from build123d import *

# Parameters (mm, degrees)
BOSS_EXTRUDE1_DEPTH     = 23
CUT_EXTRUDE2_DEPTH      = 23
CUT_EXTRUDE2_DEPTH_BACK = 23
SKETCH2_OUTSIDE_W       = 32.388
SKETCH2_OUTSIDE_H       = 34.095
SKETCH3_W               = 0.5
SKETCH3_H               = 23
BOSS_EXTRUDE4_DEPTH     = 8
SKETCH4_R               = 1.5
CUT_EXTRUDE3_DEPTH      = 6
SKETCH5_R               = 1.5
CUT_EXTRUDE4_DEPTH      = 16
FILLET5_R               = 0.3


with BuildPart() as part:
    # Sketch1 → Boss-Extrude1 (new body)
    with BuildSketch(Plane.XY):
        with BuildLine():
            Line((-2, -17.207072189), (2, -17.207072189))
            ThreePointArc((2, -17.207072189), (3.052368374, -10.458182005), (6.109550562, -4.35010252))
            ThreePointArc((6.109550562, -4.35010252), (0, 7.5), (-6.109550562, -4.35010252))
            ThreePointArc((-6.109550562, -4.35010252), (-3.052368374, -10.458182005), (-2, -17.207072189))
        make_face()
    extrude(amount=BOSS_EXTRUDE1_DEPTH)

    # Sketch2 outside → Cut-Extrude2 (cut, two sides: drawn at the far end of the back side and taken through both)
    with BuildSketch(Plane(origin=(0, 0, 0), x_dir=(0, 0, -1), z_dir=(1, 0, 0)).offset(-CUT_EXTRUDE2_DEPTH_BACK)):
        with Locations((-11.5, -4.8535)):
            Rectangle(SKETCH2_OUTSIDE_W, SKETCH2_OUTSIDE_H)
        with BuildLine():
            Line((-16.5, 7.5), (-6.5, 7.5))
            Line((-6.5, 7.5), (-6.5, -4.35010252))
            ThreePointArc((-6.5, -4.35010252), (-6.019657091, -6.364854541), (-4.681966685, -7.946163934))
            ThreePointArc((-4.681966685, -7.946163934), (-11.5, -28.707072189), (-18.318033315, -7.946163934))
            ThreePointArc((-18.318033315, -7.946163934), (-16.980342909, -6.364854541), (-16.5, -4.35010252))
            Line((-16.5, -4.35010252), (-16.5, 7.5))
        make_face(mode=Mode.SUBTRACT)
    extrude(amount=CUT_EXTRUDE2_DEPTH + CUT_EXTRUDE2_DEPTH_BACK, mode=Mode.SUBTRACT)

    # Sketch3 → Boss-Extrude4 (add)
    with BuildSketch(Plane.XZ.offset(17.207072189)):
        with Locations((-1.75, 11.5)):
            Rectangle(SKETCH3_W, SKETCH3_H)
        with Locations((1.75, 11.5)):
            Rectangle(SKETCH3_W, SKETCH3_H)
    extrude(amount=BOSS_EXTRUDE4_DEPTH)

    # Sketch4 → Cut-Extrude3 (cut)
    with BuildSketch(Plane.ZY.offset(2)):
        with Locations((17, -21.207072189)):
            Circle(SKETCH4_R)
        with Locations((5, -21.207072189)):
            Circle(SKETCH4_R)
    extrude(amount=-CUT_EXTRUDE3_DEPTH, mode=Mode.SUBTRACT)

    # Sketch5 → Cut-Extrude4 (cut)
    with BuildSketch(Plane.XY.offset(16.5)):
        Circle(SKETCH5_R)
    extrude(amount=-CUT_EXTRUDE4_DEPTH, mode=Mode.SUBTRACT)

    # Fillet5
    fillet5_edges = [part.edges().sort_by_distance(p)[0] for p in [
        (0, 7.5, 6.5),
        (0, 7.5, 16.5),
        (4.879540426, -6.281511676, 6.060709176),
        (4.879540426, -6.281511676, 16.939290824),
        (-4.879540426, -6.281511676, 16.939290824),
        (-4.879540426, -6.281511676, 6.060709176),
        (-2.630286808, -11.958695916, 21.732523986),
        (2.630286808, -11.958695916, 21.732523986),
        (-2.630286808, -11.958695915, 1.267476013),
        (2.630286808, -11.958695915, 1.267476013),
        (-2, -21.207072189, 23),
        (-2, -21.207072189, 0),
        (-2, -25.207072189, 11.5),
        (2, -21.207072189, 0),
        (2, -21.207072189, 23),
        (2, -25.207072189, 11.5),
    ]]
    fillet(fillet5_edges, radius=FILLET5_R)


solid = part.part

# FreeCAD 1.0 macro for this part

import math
import FreeCAD as App
import Part
import Sketcher
from FreeCAD import Vector


def edges_at(feature, points):
    """Names of the edges that pass closest to the given points."""
    edges = feature.Shape.Edges
    near = lambda p: min(range(len(edges)), key=lambda i: edges[i].distToShape(Part.Vertex(*p))[0])
    return sorted({f"Edge{near(p) + 1}" for p in points})


def add_polygon(sketch, points):
    """Adds a closed chain of lines whose ends are joined by coincident constraints."""
    first, n = sketch.GeometryCount, len(points)
    for a, b in zip(points, points[1:] + points[:1]):
        sketch.addGeometry(Part.LineSegment(App.Vector(*a, 0), App.Vector(*b, 0)), False)
    for i in range(n):
        sketch.addConstraint(Sketcher.Constraint("Coincident", first + i, 2, first + (i + 1) % n, 1))

doc = App.newDocument("Part")
body = doc.addObject("PartDesign::Body", "Body")

# Sketch on XY plane
sketch1 = body.newObject("Sketcher::SketchObject", "Sketch")
sketch1.AttachmentSupport = (doc.getObject("XY_Plane"), [""])
sketch1.MapMode = "FlatFace"
sketch1.addGeometry([
    Part.LineSegment(Vector(-2, -17.2, 0), Vector(2, -17.2, 0)),
    Part.ArcOfCircle(Part.Circle(Vector(24.2, -17.2, 0), Vector(0, 0, 1), 22.2), math.radians(145), math.radians(180)),
    Part.ArcOfCircle(Part.Circle(Vector(0, 0, 0), Vector(0, 0, 1), 7.5), math.radians(-35), math.radians(215)),
    Part.ArcOfCircle(Part.Circle(Vector(-24.2, -17.2, 0), Vector(0, 0, 1), 22.2), math.radians(0), math.radians(35)),
], False)
sketch1.addConstraint([
    Sketcher.Constraint("Coincident", 0, 2, 1, 2),
    Sketcher.Constraint("Tangent", 1, 1, 2, 1),
    Sketcher.Constraint("Tangent", 2, 2, 3, 2),
    Sketcher.Constraint("Coincident", 3, 1, 0, 1),
    Sketcher.Constraint("Horizontal", 0),
    Sketcher.Constraint("Coincident", 2, 3, -1, 1),
    Sketcher.Constraint("Equal", 1, 3),
    Sketcher.Constraint("Horizontal", 1, 3, 3, 3),
    Sketcher.Constraint("Horizontal", 3, 3, 0, 2),
    Sketcher.Constraint("Radius", 2, 7.5),
    Sketcher.Constraint("DistanceX", 0, 1, 0, 2, 4.0),
    Sketcher.Constraint("Radius", 1, 22.166667),
])
pad1 = body.newObject("PartDesign::Pad", "Pad")
pad1.Profile = sketch1
pad1.Length = 23

# Sketch on YZ plane
sketch2 = body.newObject("Sketcher::SketchObject", "Sketch001")
sketch2.AttachmentSupport = (doc.getObject("YZ_Plane"), [""])
sketch2.MapMode = "FlatFace"
sketch2.addGeometry([
    Part.LineSegment(Vector(12.2, 27.7, 0), Vector(-21.9, 27.7, 0)),  # 0
    Part.LineSegment(Vector(-21.9, 27.7, 0), Vector(-21.9, 22, 0)),  # 1
    Part.ArcOfCircle(Part.Circle(Vector(-17.2, 11.5, 0), Vector(0, 0, 1), 11.5), math.radians(36), math.radians(114)),  # 2
    Part.ArcOfCircle(Part.Circle(Vector(-4.4, 21, 0), Vector(0, 0, 1), 4.5), math.radians(-144), math.radians(-90)),  # 3
    Part.LineSegment(Vector(-4.4, 16.5, 0), Vector(7.5, 16.5, 0)),  # 4
    Part.LineSegment(Vector(7.5, 16.5, 0), Vector(7.5, 6.5, 0)),  # 5
    Part.LineSegment(Vector(7.5, 6.5, 0), Vector(-4.4, 6.5, 0)),  # 6
    Part.ArcOfCircle(Part.Circle(Vector(-4.4, 2, 0), Vector(0, 0, 1), 4.5), math.radians(90), math.radians(144)),  # 7
    Part.ArcOfCircle(Part.Circle(Vector(-17.2, 11.5, 0), Vector(0, 0, 1), 11.5), math.radians(-114), math.radians(-36)),  # 8
    Part.LineSegment(Vector(-21.9, 1, 0), Vector(-21.9, -4.7, 0)),  # 9
    Part.LineSegment(Vector(-21.9, -4.7, 0), Vector(12.2, -4.7, 0)),  # 10
    Part.LineSegment(Vector(12.2, -4.7, 0), Vector(12.2, 27.7, 0)),  # 11
], False)
sketch2.addConstraint([
    Sketcher.Constraint("Coincident", 0, 2, 1, 1),
    Sketcher.Constraint("Coincident", 1, 2, 2, 2),
    Sketcher.Constraint("Tangent", 2, 1, 3, 1),
    Sketcher.Constraint("Tangent", 3, 2, 4, 1),
    Sketcher.Constraint("Coincident", 4, 2, 5, 1),
    Sketcher.Constraint("Coincident", 5, 2, 6, 1),
    Sketcher.Constraint("Tangent", 6, 2, 7, 1),
    Sketcher.Constraint("Tangent", 7, 2, 8, 2),
    Sketcher.Constraint("Coincident", 8, 1, 9, 1),
    Sketcher.Constraint("Coincident", 9, 2, 10, 1),
    Sketcher.Constraint("Coincident", 10, 2, 11, 1),
    Sketcher.Constraint("Coincident", 11, 2, 0, 1),
    Sketcher.Constraint("Horizontal", 0),
    Sketcher.Constraint("Vertical", 1),
    Sketcher.Constraint("Horizontal", 4),
    Sketcher.Constraint("Vertical", 5),
    Sketcher.Constraint("Horizontal", 6),
    Sketcher.Constraint("Vertical", 9),
    Sketcher.Constraint("Horizontal", 10),
    Sketcher.Constraint("Vertical", 11),
    Sketcher.Constraint("Coincident", 8, 3, 2, 3),
    Sketcher.Constraint("Equal", 3, 7),
    Sketcher.Constraint("Equal", 2, 8),
    Sketcher.Constraint("Vertical", 3, 3, 7, 3),
    Sketcher.Constraint("Vertical", 1, 2, 8, 1),
    Sketcher.Constraint("Equal", 1, 9),
    Sketcher.Constraint("Radius", 2, 11.5),
    Sketcher.Constraint("DistanceY", 5, 2, 5, 1, 10.0),
    Sketcher.Constraint("DistanceY", -1, 1, 2, 3, 11.5),
    Sketcher.Constraint("DistanceX", -1, 1, 4, 2, 7.5),
    Sketcher.Constraint("DistanceX", 0, 2, 0, 1, 34.095),
    Sketcher.Constraint("DistanceY", 11, 1, 11, 2, 32.388),
    Sketcher.Constraint("DistanceX", 0, 2, -1, 1, 21.901),
    Sketcher.Constraint("Radius", 3, 4.465513),
    Sketcher.Constraint("DistanceY", 1, 2, 1, 1, 5.69557),
])
pocket1 = body.newObject("PartDesign::Pocket", "Pocket")
pocket1.Profile = sketch2
pocket1.Type = "ThroughAll"
pocket1.Midplane = True

# Sketch on XZ plane
sketch3 = body.newObject("Sketcher::SketchObject", "Sketch002")
sketch3.AttachmentSupport = (doc.getObject("XZ_Plane"), [""])
sketch3.MapMode = "FlatFace"
sketch3.AttachmentOffset = App.Placement(Vector(0, 0, 17.207072), App.Rotation())
add_polygon(sketch3, [(-2, 23), (-2, 0), (-1.5, 0), (-1.5, 23)])  # lines 0-3
add_polygon(sketch3, [(1.5, 23), (1.5, 0), (2, 0), (2, 23)])  # lines 4-7
sketch3.addConstraint([
    Sketcher.Constraint("Vertical", 0),
    Sketcher.Constraint("Horizontal", 1),
    Sketcher.Constraint("Vertical", 2),
    Sketcher.Constraint("Horizontal", 3),
    Sketcher.Constraint("Vertical", 4),
    Sketcher.Constraint("Horizontal", 5),
    Sketcher.Constraint("Vertical", 6),
    Sketcher.Constraint("Horizontal", 7),
    Sketcher.Constraint("Symmetric", 1, 2, 4, 2, -1, 1),
    Sketcher.Constraint("Symmetric", 0, 2, 5, 2, -2),
    Sketcher.Constraint("Horizontal", 3, 2, 6, 2),
    Sketcher.Constraint("DistanceY", 0, 2, 0, 1, 23.0),
    Sketcher.Constraint("DistanceX", 1, 1, 1, 2, 0.5),
    Sketcher.Constraint("DistanceX", 0, 2, -1, 1, 2.0),
])
pad2 = body.newObject("PartDesign::Pad", "Pad001")
pad2.Profile = sketch3
pad2.Length = 8

# Sketch on YZ plane
sketch4 = body.newObject("Sketcher::SketchObject", "Sketch003")
sketch4.AttachmentSupport = (doc.getObject("YZ_Plane"), [""])
sketch4.MapMode = "FlatFace"
sketch4.AttachmentOffset = App.Placement(Vector(0, 0, -2), App.Rotation())
sketch4.addGeometry([
    Part.Circle(Vector(-21.2, 17, 0), Vector(0, 0, 1), 1.5),
    Part.Circle(Vector(-21.2, 5, 0), Vector(0, 0, 1), 1.5),
], False)
sketch4.addConstraint([
    Sketcher.Constraint("Equal", 0, 1),
    Sketcher.Constraint("Vertical", 0, 3, 1, 3),
    Sketcher.Constraint("Diameter", 0, 3.0),
    Sketcher.Constraint("DistanceY", -1, 1, 0, 3, 17.0),
    Sketcher.Constraint("DistanceY", -1, 1, 1, 3, 5.0),
    Sketcher.Constraint("DistanceX", 0, 3, -1, 1, 21.207072),
])
pocket2 = body.newObject("PartDesign::Pocket", "Pocket001")
pocket2.Profile = sketch4
pocket2.Length = 6
pocket2.Reversed = True

# Sketch on XY plane
sketch5 = body.newObject("Sketcher::SketchObject", "Sketch004")
sketch5.AttachmentSupport = (doc.getObject("XY_Plane"), [""])
sketch5.MapMode = "FlatFace"
sketch5.AttachmentOffset = App.Placement(Vector(0, 0, 16.5), App.Rotation())
sketch5.addGeometry(Part.Circle(Vector(0, 0, 0), Vector(0, 0, 1), 1.5), False)
sketch5.addConstraint([
    Sketcher.Constraint("Coincident", 0, 3, -1, 1),
    Sketcher.Constraint("Diameter", 0, 3.0),
])
pocket3 = body.newObject("PartDesign::Pocket", "Pocket002")
pocket3.Profile = sketch5
pocket3.Length = 16
doc.recompute()

fillet = body.newObject("PartDesign::Fillet", "Fillet")
fillet.Base = (pocket3, edges_at(pocket3, [
    (0, 7.5, 6.5),
    (0, 7.5, 16.5),
    (4.88, -6.282, 6.061),
    (4.88, -6.282, 16.939),
    (-4.88, -6.282, 16.939),
    (-4.88, -6.282, 6.061),
    (-2.63, -11.959, 21.733),
    (2.63, -11.959, 21.733),
    (-2.63, -11.959, 1.267),
    (2.63, -11.959, 1.267),
    (-2, -21.207, 23),
    (-2, -21.207, 0),
    (-2, -25.207, 11.5),
    (2, -21.207, 0),
    (2, -21.207, 23),
    (2, -25.207, 11.5),
]))
fillet.Radius = 0.3

doc.recompute()
